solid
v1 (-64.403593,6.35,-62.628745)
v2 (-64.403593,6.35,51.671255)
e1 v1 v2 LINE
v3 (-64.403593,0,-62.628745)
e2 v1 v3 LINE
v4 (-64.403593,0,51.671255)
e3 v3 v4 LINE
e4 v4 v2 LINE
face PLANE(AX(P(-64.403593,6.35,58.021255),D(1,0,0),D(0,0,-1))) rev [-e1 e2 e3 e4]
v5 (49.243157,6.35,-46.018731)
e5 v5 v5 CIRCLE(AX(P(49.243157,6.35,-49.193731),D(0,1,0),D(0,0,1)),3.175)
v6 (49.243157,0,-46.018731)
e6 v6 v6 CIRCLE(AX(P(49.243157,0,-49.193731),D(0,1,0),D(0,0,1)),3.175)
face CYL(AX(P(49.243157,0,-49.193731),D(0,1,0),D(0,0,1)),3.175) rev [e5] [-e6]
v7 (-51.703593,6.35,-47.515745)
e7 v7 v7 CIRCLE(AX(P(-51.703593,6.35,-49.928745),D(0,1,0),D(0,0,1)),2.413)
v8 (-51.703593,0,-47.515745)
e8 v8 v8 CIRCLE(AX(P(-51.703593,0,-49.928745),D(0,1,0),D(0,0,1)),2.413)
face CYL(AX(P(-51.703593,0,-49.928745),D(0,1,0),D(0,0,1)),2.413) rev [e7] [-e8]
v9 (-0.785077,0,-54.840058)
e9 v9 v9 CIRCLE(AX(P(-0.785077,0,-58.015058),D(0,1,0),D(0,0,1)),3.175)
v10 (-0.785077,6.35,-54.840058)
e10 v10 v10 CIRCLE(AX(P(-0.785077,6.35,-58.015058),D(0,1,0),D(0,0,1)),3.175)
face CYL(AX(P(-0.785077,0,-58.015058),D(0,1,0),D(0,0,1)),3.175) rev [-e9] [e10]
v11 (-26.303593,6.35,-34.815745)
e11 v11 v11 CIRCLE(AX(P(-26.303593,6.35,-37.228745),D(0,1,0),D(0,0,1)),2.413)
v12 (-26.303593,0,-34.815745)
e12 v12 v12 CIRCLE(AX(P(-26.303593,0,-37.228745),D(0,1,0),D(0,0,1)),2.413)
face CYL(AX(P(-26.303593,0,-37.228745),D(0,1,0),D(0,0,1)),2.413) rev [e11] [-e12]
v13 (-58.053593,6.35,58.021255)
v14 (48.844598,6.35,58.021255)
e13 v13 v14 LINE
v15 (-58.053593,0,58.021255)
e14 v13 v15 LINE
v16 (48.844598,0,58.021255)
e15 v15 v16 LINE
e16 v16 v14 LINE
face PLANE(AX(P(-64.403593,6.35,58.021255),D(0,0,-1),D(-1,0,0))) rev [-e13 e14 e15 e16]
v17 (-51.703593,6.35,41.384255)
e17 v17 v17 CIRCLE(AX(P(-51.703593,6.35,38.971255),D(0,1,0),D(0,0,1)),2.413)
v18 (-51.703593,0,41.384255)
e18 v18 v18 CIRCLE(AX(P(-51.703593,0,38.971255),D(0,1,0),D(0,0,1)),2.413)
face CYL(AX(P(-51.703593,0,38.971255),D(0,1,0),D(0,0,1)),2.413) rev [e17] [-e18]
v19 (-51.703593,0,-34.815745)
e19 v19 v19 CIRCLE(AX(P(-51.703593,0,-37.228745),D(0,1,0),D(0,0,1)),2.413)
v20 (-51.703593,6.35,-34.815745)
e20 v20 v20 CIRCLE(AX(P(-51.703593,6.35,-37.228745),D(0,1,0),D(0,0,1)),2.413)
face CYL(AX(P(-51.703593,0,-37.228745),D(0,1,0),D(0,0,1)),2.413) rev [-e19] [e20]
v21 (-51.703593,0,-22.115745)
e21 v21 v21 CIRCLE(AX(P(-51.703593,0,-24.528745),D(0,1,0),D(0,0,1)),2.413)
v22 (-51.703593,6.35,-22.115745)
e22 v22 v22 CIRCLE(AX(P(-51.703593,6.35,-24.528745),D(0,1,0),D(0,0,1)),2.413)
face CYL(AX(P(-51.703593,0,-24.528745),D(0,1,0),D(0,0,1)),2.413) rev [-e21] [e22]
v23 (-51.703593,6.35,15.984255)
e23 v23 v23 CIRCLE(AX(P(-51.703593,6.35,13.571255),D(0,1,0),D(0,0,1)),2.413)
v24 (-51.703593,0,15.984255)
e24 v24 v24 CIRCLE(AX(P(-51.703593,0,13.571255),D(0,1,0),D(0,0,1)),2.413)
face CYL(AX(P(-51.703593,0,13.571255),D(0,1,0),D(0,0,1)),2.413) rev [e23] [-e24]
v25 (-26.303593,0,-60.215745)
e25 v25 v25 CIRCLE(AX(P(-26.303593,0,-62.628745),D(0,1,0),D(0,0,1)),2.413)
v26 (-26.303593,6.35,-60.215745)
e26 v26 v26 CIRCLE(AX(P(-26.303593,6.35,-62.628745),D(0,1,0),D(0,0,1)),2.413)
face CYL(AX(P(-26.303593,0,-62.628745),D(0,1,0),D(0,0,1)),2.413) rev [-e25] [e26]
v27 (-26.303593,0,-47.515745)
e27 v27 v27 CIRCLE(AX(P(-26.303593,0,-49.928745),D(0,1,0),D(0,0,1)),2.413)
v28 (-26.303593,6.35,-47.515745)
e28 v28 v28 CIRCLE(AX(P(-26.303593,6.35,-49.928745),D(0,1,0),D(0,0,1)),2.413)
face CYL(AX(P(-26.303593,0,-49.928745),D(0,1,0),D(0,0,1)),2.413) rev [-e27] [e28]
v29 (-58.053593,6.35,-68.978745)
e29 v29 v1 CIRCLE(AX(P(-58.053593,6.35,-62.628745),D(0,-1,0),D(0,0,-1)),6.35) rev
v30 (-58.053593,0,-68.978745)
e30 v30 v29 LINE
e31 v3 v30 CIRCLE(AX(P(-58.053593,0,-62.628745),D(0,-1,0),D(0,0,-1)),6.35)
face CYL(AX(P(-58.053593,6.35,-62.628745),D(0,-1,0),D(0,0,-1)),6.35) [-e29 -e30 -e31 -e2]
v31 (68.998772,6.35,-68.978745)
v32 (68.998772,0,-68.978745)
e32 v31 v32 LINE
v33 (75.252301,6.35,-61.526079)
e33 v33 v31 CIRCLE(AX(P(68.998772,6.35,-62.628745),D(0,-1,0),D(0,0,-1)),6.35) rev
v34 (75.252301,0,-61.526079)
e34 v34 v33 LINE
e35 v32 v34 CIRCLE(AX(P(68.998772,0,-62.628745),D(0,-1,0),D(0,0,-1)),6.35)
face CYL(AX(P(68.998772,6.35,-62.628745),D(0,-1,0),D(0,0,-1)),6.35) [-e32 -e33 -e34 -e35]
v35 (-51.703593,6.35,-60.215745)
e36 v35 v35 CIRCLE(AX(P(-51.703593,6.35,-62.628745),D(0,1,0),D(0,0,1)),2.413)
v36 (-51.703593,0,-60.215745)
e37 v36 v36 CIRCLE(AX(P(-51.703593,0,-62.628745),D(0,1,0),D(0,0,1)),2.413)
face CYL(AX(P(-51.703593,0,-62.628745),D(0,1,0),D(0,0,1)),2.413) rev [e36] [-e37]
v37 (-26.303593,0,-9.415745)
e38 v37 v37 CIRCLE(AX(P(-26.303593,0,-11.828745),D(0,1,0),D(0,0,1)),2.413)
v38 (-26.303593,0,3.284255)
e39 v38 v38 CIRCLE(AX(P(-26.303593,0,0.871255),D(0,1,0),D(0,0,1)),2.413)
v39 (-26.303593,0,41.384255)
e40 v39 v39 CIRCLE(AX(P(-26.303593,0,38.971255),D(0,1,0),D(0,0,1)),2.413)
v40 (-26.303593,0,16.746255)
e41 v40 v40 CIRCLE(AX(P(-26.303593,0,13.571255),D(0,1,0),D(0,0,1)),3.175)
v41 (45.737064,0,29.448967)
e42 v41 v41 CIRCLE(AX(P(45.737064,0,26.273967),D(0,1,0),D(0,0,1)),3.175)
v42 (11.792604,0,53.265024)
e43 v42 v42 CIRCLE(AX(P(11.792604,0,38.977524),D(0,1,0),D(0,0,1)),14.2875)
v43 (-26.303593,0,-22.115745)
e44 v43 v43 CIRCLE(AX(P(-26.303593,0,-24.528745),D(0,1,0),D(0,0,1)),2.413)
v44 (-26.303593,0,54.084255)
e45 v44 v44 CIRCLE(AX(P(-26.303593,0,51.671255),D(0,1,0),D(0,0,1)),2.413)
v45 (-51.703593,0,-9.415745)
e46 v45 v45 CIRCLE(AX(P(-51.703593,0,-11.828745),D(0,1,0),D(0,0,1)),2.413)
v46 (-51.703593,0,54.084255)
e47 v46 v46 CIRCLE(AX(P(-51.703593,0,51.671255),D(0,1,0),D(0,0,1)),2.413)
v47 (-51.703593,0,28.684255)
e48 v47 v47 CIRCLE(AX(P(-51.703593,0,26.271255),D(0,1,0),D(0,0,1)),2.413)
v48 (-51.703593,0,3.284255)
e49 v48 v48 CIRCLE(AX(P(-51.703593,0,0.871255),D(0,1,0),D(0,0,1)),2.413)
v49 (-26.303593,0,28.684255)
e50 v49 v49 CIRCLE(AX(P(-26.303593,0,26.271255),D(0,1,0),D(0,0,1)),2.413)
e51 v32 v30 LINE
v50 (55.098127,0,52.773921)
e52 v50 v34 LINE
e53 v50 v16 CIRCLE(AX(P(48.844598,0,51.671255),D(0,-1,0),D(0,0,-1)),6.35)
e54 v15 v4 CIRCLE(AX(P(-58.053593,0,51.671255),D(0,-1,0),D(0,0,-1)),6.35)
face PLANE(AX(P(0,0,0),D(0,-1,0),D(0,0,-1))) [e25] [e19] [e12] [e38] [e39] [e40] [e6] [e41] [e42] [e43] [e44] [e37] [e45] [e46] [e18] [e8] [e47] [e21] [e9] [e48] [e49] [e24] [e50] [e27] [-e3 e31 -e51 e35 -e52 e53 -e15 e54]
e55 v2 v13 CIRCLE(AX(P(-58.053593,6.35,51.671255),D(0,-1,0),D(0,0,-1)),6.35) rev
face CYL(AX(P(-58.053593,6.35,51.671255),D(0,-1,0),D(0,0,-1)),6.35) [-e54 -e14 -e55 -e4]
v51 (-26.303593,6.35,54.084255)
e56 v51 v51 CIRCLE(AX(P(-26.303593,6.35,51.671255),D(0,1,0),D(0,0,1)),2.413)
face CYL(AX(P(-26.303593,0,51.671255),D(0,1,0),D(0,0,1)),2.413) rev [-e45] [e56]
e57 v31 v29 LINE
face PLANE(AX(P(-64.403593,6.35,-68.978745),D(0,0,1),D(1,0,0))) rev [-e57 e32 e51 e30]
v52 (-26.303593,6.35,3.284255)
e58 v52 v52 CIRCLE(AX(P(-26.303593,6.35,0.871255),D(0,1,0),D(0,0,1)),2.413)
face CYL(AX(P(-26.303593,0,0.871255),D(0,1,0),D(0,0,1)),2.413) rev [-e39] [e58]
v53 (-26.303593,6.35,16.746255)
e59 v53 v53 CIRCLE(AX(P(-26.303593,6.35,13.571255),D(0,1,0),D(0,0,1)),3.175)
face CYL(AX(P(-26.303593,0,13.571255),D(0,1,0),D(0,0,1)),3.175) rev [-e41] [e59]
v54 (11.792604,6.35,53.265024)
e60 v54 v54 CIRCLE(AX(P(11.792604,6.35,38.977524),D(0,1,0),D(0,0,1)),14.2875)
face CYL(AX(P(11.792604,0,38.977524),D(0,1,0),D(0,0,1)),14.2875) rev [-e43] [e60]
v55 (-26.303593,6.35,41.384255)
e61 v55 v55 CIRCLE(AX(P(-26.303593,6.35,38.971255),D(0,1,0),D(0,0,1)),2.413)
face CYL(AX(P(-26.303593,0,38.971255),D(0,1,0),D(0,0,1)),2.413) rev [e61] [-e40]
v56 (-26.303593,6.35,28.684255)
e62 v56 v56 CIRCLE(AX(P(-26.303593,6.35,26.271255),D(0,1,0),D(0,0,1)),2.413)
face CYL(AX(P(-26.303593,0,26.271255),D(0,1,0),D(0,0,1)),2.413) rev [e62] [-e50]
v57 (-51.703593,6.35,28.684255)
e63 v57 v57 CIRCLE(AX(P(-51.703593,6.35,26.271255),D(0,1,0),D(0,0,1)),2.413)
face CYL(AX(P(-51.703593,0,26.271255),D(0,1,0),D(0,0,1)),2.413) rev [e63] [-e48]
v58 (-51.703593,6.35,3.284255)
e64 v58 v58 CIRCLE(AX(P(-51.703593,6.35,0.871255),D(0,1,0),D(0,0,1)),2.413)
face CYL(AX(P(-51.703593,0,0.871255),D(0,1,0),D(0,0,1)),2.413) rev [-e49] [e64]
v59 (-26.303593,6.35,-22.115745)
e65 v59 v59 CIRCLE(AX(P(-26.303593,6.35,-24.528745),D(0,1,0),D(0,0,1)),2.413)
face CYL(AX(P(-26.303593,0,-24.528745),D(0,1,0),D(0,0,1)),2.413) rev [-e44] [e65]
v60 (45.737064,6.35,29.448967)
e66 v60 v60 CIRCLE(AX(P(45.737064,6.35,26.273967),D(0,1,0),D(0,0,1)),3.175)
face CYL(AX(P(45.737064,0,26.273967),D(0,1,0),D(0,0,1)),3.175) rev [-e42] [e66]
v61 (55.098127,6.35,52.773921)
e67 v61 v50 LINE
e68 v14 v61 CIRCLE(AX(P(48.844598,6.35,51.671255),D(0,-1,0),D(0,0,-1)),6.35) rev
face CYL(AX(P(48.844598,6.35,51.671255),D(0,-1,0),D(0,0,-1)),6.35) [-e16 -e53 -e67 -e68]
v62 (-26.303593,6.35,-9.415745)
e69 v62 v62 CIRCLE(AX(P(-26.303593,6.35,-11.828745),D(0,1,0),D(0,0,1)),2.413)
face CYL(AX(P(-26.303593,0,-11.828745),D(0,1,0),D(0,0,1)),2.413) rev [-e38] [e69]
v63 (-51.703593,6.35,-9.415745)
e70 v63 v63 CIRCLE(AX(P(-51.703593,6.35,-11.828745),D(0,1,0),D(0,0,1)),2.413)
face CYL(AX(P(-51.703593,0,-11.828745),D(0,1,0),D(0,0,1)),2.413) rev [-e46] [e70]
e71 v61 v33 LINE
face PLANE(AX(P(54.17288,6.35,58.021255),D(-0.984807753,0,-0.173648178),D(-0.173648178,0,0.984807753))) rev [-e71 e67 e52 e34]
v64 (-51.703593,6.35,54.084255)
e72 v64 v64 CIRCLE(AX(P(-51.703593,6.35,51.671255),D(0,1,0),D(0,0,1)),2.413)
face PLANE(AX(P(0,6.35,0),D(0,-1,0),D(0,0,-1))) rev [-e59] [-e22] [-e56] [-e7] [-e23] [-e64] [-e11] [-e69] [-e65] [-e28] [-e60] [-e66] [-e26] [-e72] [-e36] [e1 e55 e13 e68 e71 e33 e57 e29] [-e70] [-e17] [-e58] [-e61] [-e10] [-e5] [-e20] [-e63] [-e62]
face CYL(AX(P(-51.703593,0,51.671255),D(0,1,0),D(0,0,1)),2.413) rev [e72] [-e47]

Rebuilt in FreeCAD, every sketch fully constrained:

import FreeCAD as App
import Part
import Sketcher
from FreeCAD import Vector
Q = App.Units.Quantity


def edges_at(feature, points):
    """Names of the edges that pass closest to the given points."""
    edges = feature.Shape.Edges
    near = lambda p: min(range(len(edges)), key=lambda i: edges[i].distToShape(Part.Vertex(*p))[0])
    return sorted({f"Edge{near(p) + 1}" for p in points})

doc = App.newDocument("Part")
body = doc.addObject("PartDesign::Body", "Body")

sketch1 = body.newObject("Sketcher::SketchObject", "Sketch")
sketch1.AttachmentSupport = (doc.getObject("XZ_Plane"), [""])
sketch1.MapMode = "FlatFace"
sketch1.addGeometry([
    Part.LineSegment(Vector(-64, 58, 0), Vector(54, 58, 0)),
    Part.LineSegment(Vector(54, 58, 0), Vector(77, -69, 0)),
    Part.LineSegment(Vector(77, -69, 0), Vector(-64, -69, 0)),
    Part.LineSegment(Vector(-64, -69, 0), Vector(-64, 58, 0)),
], False)
sketch1.addConstraint([
    Sketcher.Constraint("Coincident", 0, 2, 1, 1),
    Sketcher.Constraint("Coincident", 1, 2, 2, 1),
    Sketcher.Constraint("Coincident", 2, 2, 3, 1),
    Sketcher.Constraint("Coincident", 3, 2, 0, 1),
    Sketcher.Constraint("Horizontal", 0),
    Sketcher.Constraint("Horizontal", 2),
    Sketcher.Constraint("Vertical", 3),
    Sketcher.Constraint("DistanceY", 3, 1, 3, 2, Q("5 in")),
    Sketcher.Constraint("Angle", 1, Q("-80 deg")),
    Sketcher.Constraint("DistanceX", 2, 2, 2, 1, Q("5.55 in")),
    Sketcher.Constraint("DistanceX", -1, 1, 0, 2, Q("54.17288 mm")),
    Sketcher.Constraint("DistanceY", -1, 1, 0, 2, Q("58.021255 mm")),
])
pad1 = body.newObject("PartDesign::Pad", "Pad")
pad1.Profile = sketch1
pad1.Length = Q("0.25 in")
pad1.Reversed = True

sketch2 = body.newObject("Sketcher::SketchObject", "Sketch001")
sketch2.AttachmentSupport = (doc.getObject("XZ_Plane"), [""])
sketch2.MapMode = "FlatFace"
sketch2.AttachmentOffset = App.Placement(Vector(0, 0, -0.25 * 25.4), App.Rotation())
sketch2.addGeometry([
    Part.Circle(Vector(-51.7, 51.7, 0), Vector(0, 0, 1), 2.4),
    Part.Circle(Vector(-26.3, 51.7, 0), Vector(0, 0, 1), 2.4),
], False)
sketch2.addConstraint([
    Sketcher.Constraint("Equal", 0, 1),
    Sketcher.Constraint("Horizontal", 0, 3, 1, 3),
    Sketcher.Constraint("Diameter", 0, Q("0.19 in")),
    Sketcher.Constraint("DistanceX", 0, 3, 1, 3, Q("1 in")),
    Sketcher.Constraint("DistanceX", 0, 3, -1, 1, Q("51.703593 mm")),
    Sketcher.Constraint("DistanceY", -1, 1, 0, 3, Q("51.671255 mm")),
])
pocket1 = body.newObject("PartDesign::Pocket", "Pocket")
pocket1.Profile = sketch2
pocket1.Type = "ThroughAll"
pocket1.Reversed = True
doc.recompute()

linearpattern = body.newObject("PartDesign::LinearPattern", "LinearPattern")
linearpattern.Originals = [pocket1]
linearpattern.Direction = (doc.getObject("Z_Axis"), [""])
linearpattern.Mode = "offset"
linearpattern.Offset = Q("0.5 in")
linearpattern.Occurrences = 10
linearpattern.Reversed = True
body.Tip = linearpattern

sketch3 = body.newObject("Sketcher::SketchObject", "Sketch002")
sketch3.AttachmentSupport = (doc.getObject("XZ_Plane"), [""])
sketch3.MapMode = "FlatFace"
sketch3.AttachmentOffset = App.Placement(Vector(0, 0, -0.25 * 25.4), App.Rotation())
sketch3.addGeometry([
    Part.Circle(Vector(-26.3, 13.6, 0), Vector(0, 0, 1), 3.2),
    Part.Circle(Vector(49.2, -49.2, 0), Vector(0, 0, 1), 3.2),
    Part.Circle(Vector(45.7, 26.3, 0), Vector(0, 0, 1), 3.2),
    Part.Circle(Vector(-0.8, -58, 0), Vector(0, 0, 1), 3.2),
], False)
sketch3.addConstraint([
    Sketcher.Constraint("Equal", 0, 1),
    Sketcher.Constraint("Equal", 1, 2),
    Sketcher.Constraint("Equal", 2, 3),
    Sketcher.Constraint("Diameter", 0, Q("0.25 in")),
    Sketcher.Constraint("DistanceY", 1, 3, -1, 1, Q("49.193731 mm")),
    Sketcher.Constraint("DistanceY", 3, 3, -1, 1, Q("58.015058 mm")),
    Sketcher.Constraint("DistanceX", 0, 3, 1, 3, Q("75.54675 mm")),
    Sketcher.Constraint("DistanceY", 0, 3, 2, 3, Q("12.702711 mm")),
    Sketcher.Constraint("DistanceX", 3, 3, 2, 3, Q("46.52214 mm")),
    Sketcher.Constraint("DistanceX", 0, 3, -1, 1, Q("26.303593 mm")),
    Sketcher.Constraint("DistanceY", -1, 1, 0, 3, Q("13.571255 mm")),
    Sketcher.Constraint("DistanceX", -1, 1, 2, 3, Q("45.737064 mm")),
])
pocket2 = body.newObject("PartDesign::Pocket", "Pocket001")
pocket2.Profile = sketch3
pocket2.Type = "ThroughAll"
pocket2.Reversed = True
doc.recompute()

fillet = body.newObject("PartDesign::Fillet", "Fillet")
fillet.Base = (pocket2, edges_at(pocket2, [
    (54.173, 3.175, 58.021),
    (-64.404, 3.175, 58.021),
    (-64.404, 3.175, -68.979),
    (76.566, 3.175, -68.979),
]))
fillet.Radius = Q("0.25 in")

sketch4 = body.newObject("Sketcher::SketchObject", "Sketch003")
sketch4.AttachmentSupport = (doc.getObject("XZ_Plane"), [""])
sketch4.MapMode = "FlatFace"
sketch4.AttachmentOffset = App.Placement(Vector(0, 0, -0.25 * 25.4), App.Rotation())
sketch4.addGeometry(Part.Circle(Vector(12, 39, 0), Vector(0, 0, 1), 14), False)
sketch4.addConstraint([
    Sketcher.Constraint("Diameter", 0, Q("1.125 in")),
    Sketcher.Constraint("DistanceX", -1, 1, 0, 3, Q("11.792604 mm")),
    Sketcher.Constraint("DistanceY", -1, 1, 0, 3, Q("38.977524 mm")),
])
pocket3 = body.newObject("PartDesign::Pocket", "Pocket002")
pocket3.Profile = sketch4
pocket3.Type = "ThroughAll"
pocket3.Reversed = True

doc.recompute()
